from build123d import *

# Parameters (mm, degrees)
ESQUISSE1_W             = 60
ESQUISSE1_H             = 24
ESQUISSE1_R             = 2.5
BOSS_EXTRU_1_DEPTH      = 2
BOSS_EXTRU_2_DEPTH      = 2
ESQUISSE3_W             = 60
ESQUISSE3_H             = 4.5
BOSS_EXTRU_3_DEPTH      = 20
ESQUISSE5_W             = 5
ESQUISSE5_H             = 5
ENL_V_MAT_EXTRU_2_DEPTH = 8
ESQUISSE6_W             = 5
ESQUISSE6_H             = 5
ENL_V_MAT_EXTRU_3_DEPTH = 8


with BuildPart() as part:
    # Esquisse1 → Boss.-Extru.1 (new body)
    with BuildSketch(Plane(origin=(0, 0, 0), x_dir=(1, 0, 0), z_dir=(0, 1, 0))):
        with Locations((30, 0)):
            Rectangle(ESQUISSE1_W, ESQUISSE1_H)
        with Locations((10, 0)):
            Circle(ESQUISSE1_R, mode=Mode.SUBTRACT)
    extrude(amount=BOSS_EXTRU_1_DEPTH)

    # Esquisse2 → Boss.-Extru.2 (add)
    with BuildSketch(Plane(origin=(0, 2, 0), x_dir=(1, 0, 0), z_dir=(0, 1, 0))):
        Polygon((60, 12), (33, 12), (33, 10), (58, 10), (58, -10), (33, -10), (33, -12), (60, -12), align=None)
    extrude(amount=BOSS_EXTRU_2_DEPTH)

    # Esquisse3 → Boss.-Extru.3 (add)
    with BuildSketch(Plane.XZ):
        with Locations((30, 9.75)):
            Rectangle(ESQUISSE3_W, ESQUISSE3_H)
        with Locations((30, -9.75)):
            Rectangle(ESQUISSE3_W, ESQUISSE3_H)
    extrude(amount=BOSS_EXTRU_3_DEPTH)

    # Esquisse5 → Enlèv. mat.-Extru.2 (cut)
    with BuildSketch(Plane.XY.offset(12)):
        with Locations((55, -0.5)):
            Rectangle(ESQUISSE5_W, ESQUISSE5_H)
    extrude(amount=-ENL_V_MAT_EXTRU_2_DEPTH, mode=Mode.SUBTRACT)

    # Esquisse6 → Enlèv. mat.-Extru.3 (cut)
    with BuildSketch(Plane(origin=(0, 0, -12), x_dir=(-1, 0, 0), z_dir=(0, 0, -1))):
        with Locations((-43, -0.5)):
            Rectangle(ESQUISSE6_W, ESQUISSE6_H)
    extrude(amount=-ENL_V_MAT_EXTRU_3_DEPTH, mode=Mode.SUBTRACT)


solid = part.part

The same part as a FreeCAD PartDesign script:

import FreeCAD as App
import Part
import Sketcher


def add_polygon(sketch, points):
    """Adds a closed chain of lines whose ends are joined by coincident constraints."""
    first, n = sketch.GeometryCount, len(points)
    for a, b in zip(points, points[1:] + points[:1]):
        sketch.addGeometry(Part.LineSegment(App.Vector(*a, 0), App.Vector(*b, 0)), False)
    for i in range(n):
        sketch.addConstraint(Sketcher.Constraint("Coincident", first + i, 2, first + (i + 1) % n, 1))

doc = App.newDocument("Part")
body = doc.addObject("PartDesign::Body", "Body")

# Sketch on XZ plane
sketch1 = body.newObject("Sketcher::SketchObject", "Sketch")
sketch1.AttachmentSupport = (doc.getObject("XZ_Plane"), [""])
sketch1.MapMode = "FlatFace"
add_polygon(sketch1, [(0, -12), (0, 12), (60, 12), (60, -12)])  # lines 0-3
sketch1.addGeometry(Part.Circle(App.Vector(10, 0, 0), App.Vector(0, 0, 1), 2.5), False)  # 4
sketch1.addConstraint([
    Sketcher.Constraint("Vertical", 0),
    Sketcher.Constraint("Horizontal", 1),
    Sketcher.Constraint("Vertical", 2),
    Sketcher.Constraint("Horizontal", 3),
    Sketcher.Constraint("Symmetric", 0, 2, 3, 2, -1, 1),
    Sketcher.Constraint("PointOnObject", 4, 3, -1),
    Sketcher.Constraint("Diameter", 4, 5.0),
    Sketcher.Constraint("DistanceX", 1, 1, 1, 2, 60.0),
    Sketcher.Constraint("DistanceY", 0, 1, 0, 2, 24.0),
    Sketcher.Constraint("DistanceX", -1, 1, 4, 3, 10.0),
])
pad1 = body.newObject("PartDesign::Pad", "Pad")
pad1.Profile = sketch1
pad1.Length = 2
pad1.Reversed = True

# Sketch on XZ plane
sketch2 = body.newObject("Sketcher::SketchObject", "Sketch001")
sketch2.AttachmentSupport = (doc.getObject("XZ_Plane"), [""])
sketch2.MapMode = "FlatFace"
sketch2.AttachmentOffset = App.Placement(App.Vector(0, 0, -2), App.Rotation())
add_polygon(sketch2, [(60, -12), (33, -12), (33, -10), (58, -10), (58, 10), (33, 10), (33, 12), (60, 12)])  # lines 0-7
sketch2.addConstraint([
    Sketcher.Constraint("Horizontal", 0),
    Sketcher.Constraint("Vertical", 1),
    Sketcher.Constraint("Horizontal", 2),
    Sketcher.Constraint("Vertical", 3),
    Sketcher.Constraint("Horizontal", 4),
    Sketcher.Constraint("Vertical", 5),
    Sketcher.Constraint("Horizontal", 6),
    Sketcher.Constraint("Vertical", 7),
    Sketcher.Constraint("Symmetric", 1, 2, 4, 2, -1),
    Sketcher.Constraint("Equal", 1, 5),
    Sketcher.Constraint("DistanceX", 0, 2, 0, 1, 27.0),
    Sketcher.Constraint("DistanceX", 2, 1, 2, 2, 25.0),
    Sketcher.Constraint("DistanceY", 1, 1, 1, 2, 2.0),
    Sketcher.Constraint("DistanceY", 3, 1, 3, 2, 20.0),
    Sketcher.Constraint("DistanceX", -1, 1, 0, 2, 33.0),
])
pad2 = body.newObject("PartDesign::Pad", "Pad001")
pad2.Profile = sketch2
pad2.Length = 2
pad2.Reversed = True

# Sketch on XZ plane
sketch3 = body.newObject("Sketcher::SketchObject", "Sketch002")
sketch3.AttachmentSupport = (doc.getObject("XZ_Plane"), [""])
sketch3.MapMode = "FlatFace"
add_polygon(sketch3, [(0, 12), (0, 7.5), (60, 7.5), (60, 12)])  # lines 0-3
add_polygon(sketch3, [(0, -7.5), (0, -12), (60, -12), (60, -7.5)])  # lines 4-7
sketch3.addConstraint([
    Sketcher.Constraint("Vertical", 0),
    Sketcher.Constraint("Horizontal", 1),
    Sketcher.Constraint("Vertical", 2),
    Sketcher.Constraint("Horizontal", 3),
    Sketcher.Constraint("Vertical", 4),
    Sketcher.Constraint("Horizontal", 5),
    Sketcher.Constraint("Vertical", 6),
    Sketcher.Constraint("Horizontal", 7),
    Sketcher.Constraint("Symmetric", 3, 2, 4, 2, -1, 1),
    Sketcher.Constraint("Symmetric", 1, 2, 6, 2, -1),
    Sketcher.Constraint("PointOnObject", 0, 2, -2),
    Sketcher.Constraint("DistanceX", 1, 1, 1, 2, 60.0),
    Sketcher.Constraint("DistanceY", 0, 2, 0, 1, 4.5),
    Sketcher.Constraint("DistanceY", -1, 1, 2, 2, 12.0),
])
pad3 = body.newObject("PartDesign::Pad", "Pad002")
pad3.Profile = sketch3
pad3.Length = 20

# Sketch on XY plane
sketch4 = body.newObject("Sketcher::SketchObject", "Sketch003")
sketch4.AttachmentSupport = (doc.getObject("XY_Plane"), [""])
sketch4.MapMode = "FlatFace"
sketch4.AttachmentOffset = App.Placement(App.Vector(0, 0, 12), App.Rotation())
add_polygon(sketch4, [(52.5, 2), (52.5, -3), (57.5, -3), (57.5, 2)])  # lines 0-3
sketch4.addConstraint([
    Sketcher.Constraint("Vertical", 0),
    Sketcher.Constraint("Horizontal", 1),
    Sketcher.Constraint("Vertical", 2),
    Sketcher.Constraint("Horizontal", 3),
    Sketcher.Constraint("Equal", 3, 0),
    Sketcher.Constraint("DistanceX", 1, 1, 1, 2, 5.0),
    Sketcher.Constraint("DistanceY", 0, 2, -1, 1, 3.0),
    Sketcher.Constraint("DistanceX", -1, 1, 0, 2, 52.5),
])
pocket1 = body.newObject("PartDesign::Pocket", "Pocket")
pocket1.Profile = sketch4
pocket1.Length = 8

# Sketch on XY plane
sketch5 = body.newObject("Sketcher::SketchObject", "Sketch004")
sketch5.AttachmentSupport = (doc.getObject("XY_Plane"), [""])
sketch5.MapMode = "FlatFace"
sketch5.AttachmentOffset = App.Placement(App.Vector(0, 0, -12), App.Rotation())
add_polygon(sketch5, [(45.5, 2), (45.5, -3), (40.5, -3), (40.5, 2)])  # lines 0-3
sketch5.addConstraint([
    Sketcher.Constraint("Vertical", 0),
    Sketcher.Constraint("Horizontal", 1),
    Sketcher.Constraint("Vertical", 2),
    Sketcher.Constraint("Horizontal", 3),
    Sketcher.Constraint("Equal", 3, 0),
    Sketcher.Constraint("DistanceX", 1, 2, 1, 1, 5.0),
    Sketcher.Constraint("DistanceY", 0, 2, -1, 1, 3.0),
    Sketcher.Constraint("DistanceX", -1, 1, 0, 2, 45.5),
])
pocket2 = body.newObject("PartDesign::Pocket", "Pocket001")
pocket2.Profile = sketch5
pocket2.Length = 8
pocket2.Reversed = True

doc.recompute()
